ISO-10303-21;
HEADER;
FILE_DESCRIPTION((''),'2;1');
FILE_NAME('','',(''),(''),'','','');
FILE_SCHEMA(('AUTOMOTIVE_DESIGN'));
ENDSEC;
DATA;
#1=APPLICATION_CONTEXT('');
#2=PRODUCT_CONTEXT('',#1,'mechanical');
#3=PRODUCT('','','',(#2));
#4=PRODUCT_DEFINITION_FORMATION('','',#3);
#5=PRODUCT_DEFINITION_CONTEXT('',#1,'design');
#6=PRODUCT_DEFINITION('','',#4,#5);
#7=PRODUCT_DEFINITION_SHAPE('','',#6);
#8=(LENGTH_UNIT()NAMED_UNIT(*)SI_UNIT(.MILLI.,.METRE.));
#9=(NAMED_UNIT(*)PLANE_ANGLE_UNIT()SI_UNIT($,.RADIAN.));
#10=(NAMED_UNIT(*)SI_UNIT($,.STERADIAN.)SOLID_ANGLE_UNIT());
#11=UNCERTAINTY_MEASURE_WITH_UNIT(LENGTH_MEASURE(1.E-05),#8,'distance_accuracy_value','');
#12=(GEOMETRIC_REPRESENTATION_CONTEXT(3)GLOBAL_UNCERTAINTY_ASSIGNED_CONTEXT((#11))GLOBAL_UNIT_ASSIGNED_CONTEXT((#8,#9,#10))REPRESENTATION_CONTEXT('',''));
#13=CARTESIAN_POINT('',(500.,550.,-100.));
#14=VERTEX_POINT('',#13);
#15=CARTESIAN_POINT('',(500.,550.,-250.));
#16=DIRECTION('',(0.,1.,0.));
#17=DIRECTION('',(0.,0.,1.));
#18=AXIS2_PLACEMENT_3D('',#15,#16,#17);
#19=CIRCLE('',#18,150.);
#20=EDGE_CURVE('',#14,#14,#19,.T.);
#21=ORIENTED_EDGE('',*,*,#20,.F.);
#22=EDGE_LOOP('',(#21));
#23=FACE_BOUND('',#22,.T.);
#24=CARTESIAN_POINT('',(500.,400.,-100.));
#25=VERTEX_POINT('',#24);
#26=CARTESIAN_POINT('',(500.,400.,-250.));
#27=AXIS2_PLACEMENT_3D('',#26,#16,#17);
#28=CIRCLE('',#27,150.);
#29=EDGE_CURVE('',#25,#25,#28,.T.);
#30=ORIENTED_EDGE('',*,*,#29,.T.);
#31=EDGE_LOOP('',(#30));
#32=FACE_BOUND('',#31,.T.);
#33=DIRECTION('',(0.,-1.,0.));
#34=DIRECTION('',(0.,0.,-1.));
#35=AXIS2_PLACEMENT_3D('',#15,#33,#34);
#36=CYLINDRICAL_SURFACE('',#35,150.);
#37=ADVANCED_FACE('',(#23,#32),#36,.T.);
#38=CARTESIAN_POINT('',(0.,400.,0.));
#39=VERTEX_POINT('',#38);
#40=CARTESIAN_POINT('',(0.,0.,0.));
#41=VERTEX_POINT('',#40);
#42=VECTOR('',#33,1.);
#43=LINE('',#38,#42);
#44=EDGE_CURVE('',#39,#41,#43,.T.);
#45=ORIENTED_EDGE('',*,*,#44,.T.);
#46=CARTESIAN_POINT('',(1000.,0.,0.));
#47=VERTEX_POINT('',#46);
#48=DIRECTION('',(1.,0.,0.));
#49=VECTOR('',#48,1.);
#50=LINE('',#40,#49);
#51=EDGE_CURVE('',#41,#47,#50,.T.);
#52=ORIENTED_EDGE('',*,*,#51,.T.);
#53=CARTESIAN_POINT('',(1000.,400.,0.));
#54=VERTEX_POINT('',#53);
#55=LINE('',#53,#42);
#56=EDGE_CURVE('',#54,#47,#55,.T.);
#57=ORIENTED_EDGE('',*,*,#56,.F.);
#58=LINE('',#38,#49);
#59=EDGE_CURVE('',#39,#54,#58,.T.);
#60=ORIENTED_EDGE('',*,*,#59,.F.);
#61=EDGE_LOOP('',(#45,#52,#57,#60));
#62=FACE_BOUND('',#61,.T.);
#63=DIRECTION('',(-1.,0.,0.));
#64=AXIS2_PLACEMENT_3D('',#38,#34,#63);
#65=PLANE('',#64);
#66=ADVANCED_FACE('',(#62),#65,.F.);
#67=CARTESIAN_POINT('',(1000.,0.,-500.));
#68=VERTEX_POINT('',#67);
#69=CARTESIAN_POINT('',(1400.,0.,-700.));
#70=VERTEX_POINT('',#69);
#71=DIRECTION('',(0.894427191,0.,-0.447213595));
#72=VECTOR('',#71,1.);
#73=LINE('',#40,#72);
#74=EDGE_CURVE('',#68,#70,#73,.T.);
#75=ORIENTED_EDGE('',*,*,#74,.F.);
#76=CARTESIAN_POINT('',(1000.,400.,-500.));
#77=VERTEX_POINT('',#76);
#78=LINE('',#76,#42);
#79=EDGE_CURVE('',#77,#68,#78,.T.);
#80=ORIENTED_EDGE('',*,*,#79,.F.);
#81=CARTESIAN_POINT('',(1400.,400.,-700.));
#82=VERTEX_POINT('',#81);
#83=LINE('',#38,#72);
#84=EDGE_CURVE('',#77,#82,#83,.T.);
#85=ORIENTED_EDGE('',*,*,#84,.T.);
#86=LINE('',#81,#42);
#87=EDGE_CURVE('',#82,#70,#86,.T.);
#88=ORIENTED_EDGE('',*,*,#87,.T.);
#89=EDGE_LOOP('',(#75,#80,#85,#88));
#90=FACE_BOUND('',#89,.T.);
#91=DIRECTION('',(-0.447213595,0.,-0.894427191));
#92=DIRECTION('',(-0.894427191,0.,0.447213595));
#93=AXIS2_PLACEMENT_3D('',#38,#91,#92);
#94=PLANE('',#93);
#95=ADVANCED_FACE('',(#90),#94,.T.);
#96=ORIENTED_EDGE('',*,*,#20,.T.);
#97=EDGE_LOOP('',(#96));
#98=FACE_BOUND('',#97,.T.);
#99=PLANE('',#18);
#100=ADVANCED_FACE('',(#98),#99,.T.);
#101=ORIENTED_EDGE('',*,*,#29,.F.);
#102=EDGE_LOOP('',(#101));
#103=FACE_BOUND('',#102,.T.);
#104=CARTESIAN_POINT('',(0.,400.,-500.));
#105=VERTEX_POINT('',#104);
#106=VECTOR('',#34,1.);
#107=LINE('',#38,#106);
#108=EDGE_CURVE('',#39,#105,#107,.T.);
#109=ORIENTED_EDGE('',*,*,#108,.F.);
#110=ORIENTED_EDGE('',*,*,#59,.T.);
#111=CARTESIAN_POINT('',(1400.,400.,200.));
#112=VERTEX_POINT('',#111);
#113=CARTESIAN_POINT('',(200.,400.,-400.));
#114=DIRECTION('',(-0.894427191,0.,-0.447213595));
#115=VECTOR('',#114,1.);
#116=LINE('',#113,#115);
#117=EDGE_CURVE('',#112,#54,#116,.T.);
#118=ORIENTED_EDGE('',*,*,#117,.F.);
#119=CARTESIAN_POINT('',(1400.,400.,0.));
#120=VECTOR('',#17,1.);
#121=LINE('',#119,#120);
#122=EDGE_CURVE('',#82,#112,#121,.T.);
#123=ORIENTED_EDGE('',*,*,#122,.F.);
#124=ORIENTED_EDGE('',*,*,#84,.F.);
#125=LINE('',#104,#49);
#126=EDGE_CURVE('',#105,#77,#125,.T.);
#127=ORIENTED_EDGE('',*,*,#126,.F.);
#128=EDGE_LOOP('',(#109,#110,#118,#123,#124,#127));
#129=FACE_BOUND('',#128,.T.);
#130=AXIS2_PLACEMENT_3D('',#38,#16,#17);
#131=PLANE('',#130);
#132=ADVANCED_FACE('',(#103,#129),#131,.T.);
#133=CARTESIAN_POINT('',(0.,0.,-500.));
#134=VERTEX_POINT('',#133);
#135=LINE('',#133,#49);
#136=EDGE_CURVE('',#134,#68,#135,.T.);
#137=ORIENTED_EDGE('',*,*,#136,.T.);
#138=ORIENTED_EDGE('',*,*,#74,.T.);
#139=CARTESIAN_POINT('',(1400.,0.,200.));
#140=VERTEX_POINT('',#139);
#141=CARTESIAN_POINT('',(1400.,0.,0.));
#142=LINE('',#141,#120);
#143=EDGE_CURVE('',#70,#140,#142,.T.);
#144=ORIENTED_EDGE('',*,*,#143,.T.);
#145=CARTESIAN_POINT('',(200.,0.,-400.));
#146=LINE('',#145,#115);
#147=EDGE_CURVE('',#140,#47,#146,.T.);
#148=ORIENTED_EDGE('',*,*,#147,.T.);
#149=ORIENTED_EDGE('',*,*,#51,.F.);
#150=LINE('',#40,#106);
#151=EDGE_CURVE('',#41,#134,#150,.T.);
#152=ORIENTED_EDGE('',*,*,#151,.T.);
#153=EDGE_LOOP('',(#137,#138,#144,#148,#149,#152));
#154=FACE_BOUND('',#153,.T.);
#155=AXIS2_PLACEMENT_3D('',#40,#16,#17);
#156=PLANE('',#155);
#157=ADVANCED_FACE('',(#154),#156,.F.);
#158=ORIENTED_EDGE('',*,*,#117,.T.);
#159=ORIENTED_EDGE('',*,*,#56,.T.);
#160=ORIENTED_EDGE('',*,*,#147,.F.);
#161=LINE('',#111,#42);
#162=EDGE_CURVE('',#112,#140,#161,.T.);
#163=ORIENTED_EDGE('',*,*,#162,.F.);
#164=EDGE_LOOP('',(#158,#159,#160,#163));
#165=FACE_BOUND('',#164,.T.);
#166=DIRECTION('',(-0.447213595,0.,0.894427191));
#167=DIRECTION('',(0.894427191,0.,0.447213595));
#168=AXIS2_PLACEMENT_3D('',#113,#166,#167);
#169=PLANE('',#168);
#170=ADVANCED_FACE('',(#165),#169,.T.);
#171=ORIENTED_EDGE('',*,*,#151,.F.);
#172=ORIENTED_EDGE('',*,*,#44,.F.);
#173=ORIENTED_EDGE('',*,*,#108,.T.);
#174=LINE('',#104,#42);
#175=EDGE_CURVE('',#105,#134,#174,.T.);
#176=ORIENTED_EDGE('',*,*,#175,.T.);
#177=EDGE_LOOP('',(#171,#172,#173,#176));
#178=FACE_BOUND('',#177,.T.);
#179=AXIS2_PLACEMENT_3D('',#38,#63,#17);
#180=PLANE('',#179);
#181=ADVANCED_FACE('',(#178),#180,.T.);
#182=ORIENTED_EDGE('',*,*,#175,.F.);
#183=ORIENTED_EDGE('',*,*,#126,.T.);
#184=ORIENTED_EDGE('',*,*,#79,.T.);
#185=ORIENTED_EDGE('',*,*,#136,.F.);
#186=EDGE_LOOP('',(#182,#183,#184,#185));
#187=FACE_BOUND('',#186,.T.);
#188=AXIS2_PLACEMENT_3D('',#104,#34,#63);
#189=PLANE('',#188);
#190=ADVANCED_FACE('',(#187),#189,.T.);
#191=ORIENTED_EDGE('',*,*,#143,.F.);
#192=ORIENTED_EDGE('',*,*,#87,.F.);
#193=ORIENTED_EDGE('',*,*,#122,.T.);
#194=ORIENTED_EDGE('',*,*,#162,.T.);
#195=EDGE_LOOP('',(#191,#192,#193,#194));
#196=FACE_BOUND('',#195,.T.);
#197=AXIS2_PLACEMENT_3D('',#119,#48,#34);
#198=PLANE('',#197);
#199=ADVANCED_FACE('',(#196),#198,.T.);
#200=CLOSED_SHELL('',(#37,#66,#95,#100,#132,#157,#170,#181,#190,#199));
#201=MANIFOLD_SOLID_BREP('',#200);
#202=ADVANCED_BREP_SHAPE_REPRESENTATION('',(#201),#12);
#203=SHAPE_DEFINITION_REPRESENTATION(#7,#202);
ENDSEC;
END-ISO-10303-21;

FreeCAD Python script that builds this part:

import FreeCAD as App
import Part
import Sketcher

V = App.Vector


def add_polygon(sketch, points):
    """Adds a closed chain of lines whose ends are joined by coincident constraints."""
    first, n = sketch.GeometryCount, len(points)
    for a, b in zip(points, points[1:] + points[:1]):
        sketch.addGeometry(Part.LineSegment(App.Vector(*a, 0), App.Vector(*b, 0)), False)
    for i in range(n):
        sketch.addConstraint(Sketcher.Constraint("Coincident", first + i, 2, first + (i + 1) % n, 1))

doc = App.newDocument("Part")
body = doc.addObject("PartDesign::Body", "Body")

# Sketch on XZ plane
sketch1 = body.newObject("Sketcher::SketchObject", "Sketch")
sketch1.AttachmentSupport = (doc.getObject("XZ_Plane"), [""])
sketch1.MapMode = "FlatFace"
add_polygon(sketch1, [(1000, 0), (1400, 200), (1400, -700), (1000, -500), (0, -500), (0, 0)])  # lines 0-5
sketch1.addConstraint(Sketcher.Constraint("Vertical", 1))
sketch1.addConstraint(Sketcher.Constraint("Horizontal", 3))
sketch1.addConstraint(Sketcher.Constraint("Vertical", 4))
sketch1.addConstraint(Sketcher.Constraint("Horizontal", 5))
sketch1.addConstraint(Sketcher.Constraint("Coincident", 4, 2, -1, 1))
sketch1.addConstraint(Sketcher.Constraint("Vertical", 2, 2, 5, 2))
sketch1.addConstraint(Sketcher.Constraint("Equal", 0, 2))
sketch1.addConstraint(Sketcher.Constraint("DistanceX", 3, 2, 3, 1, 1000.0))
sketch1.addConstraint(Sketcher.Constraint("DistanceY", 1, 2, 1, 1, 900.0))
sketch1.addConstraint(Sketcher.Constraint("DistanceY", 4, 1, 4, 2, 500.0))
sketch1.addConstraint(Sketcher.Constraint("DistanceX", -1, 1, 0, 2, 1400.0))
pad1 = body.newObject("PartDesign::Pad", "Pad")
pad1.Profile = sketch1
pad1.Length = 400
pad1.Reversed = True

# Sketch on XZ plane
sketch2 = body.newObject("Sketcher::SketchObject", "Sketch001")
sketch2.AttachmentSupport = (doc.getObject("XZ_Plane"), [""])
sketch2.MapMode = "FlatFace"
sketch2.AttachmentOffset = App.Placement(V(0, 0, -400), App.Rotation())
sketch2.addGeometry(Part.Circle(V(500, -250, 0), V(0, 0, 1), 150), False)
sketch2.addConstraint(Sketcher.Constraint("Diameter", 0, 300.0))
sketch2.addConstraint(Sketcher.Constraint("DistanceX", -1, 1, 0, 3, 500.0))
sketch2.addConstraint(Sketcher.Constraint("DistanceY", 0, 3, -1, 1, 250.0))
pad2 = body.newObject("PartDesign::Pad", "Pad001")
pad2.Profile = sketch2
pad2.Length = 150
pad2.Reversed = True

doc.recompute()
